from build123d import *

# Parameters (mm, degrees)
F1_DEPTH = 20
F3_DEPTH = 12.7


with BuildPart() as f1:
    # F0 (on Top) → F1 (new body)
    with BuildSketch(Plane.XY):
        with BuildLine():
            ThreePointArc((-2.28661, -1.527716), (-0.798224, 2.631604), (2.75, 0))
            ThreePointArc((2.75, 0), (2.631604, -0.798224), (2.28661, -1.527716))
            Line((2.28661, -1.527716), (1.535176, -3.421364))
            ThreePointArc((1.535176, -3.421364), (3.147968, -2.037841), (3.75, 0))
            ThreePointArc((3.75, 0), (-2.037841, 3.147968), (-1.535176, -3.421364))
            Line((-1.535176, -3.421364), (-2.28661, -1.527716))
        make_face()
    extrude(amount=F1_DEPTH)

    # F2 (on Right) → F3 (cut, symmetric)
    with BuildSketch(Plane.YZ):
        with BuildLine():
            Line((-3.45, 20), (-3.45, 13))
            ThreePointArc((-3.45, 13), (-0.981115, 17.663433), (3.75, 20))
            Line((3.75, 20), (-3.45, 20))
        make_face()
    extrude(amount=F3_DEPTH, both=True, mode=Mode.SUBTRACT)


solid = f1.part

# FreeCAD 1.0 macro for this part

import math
import FreeCAD as App
import Part
import Sketcher

V = App.Vector
Q = App.Units.Quantity

doc = App.newDocument("Part")
body = doc.addObject("PartDesign::Body", "Body")

# Sketch on XY plane
sketch1 = body.newObject("Sketcher::SketchObject", "Sketch")
sketch1.AttachmentSupport = (doc.getObject("XY_Plane"), [""])
sketch1.MapMode = "FlatFace"
sketch1.addGeometry([
    Part.ArcOfCircle(Part.Circle(V(0, 0, 0), V(0, 0, 1), 2.8), math.radians(0), math.radians(214)),  # 0
    Part.ArcOfCircle(Part.Circle(V(0, 0, 0), V(0, 0, 1), 2.7), math.radians(-34), math.radians(0)),  # 1
    Part.LineSegment(V(2.3, -1.5, 0), V(1.5, -3.4, 0)),  # 2
    Part.ArcOfCircle(Part.Circle(V(0, 0, 0), V(0, 0, 1), 3.7), math.radians(-66), math.radians(0)),  # 3
    Part.ArcOfCircle(Part.Circle(V(0, 0, 0), V(0, 0, 1), 3.7), math.radians(0), math.radians(246)),  # 4
    Part.LineSegment(V(-1.5, -3.4, 0), V(-2.3, -1.5, 0)),  # 5
], False)
sketch1.addConstraint([
    Sketcher.Constraint("Tangent", 0, 1, 1, 2),
    Sketcher.Constraint("Coincident", 1, 1, 2, 1),
    Sketcher.Constraint("Coincident", 2, 2, 3, 1),
    Sketcher.Constraint("Tangent", 3, 2, 4, 1),
    Sketcher.Constraint("Coincident", 4, 2, 5, 1),
    Sketcher.Constraint("Coincident", 5, 2, 0, 2),
    Sketcher.Constraint("Coincident", 0, 3, -1, 1),
    Sketcher.Constraint("Coincident", 3, 3, -1, 1),
    Sketcher.Constraint("Equal", 0, 1),
    Sketcher.Constraint("Equal", 3, 4),
    Sketcher.Constraint("PointOnObject", 0, 1, -1),
    Sketcher.Constraint("PointOnObject", 3, 2, -1),
    Sketcher.Constraint("Horizontal", 2, 2, 4, 2),
    Sketcher.Constraint("Horizontal", 1, 1, 5, 2),
    Sketcher.Constraint("Radius", 0, Q("2.75 mm")),
    Sketcher.Constraint("Radius", 3, Q("3.75 mm")),
    Sketcher.Constraint("Distance", 2, Q("2.037291 mm")),
    Sketcher.Constraint("DistanceX", -1, 1, 1, 1, Q("2.28661 mm")),
])
pad1 = body.newObject("PartDesign::Pad", "Pad")
pad1.Profile = sketch1
pad1.Length = 20

# Sketch on YZ plane
sketch2 = body.newObject("Sketcher::SketchObject", "Sketch001")
sketch2.AttachmentSupport = (doc.getObject("YZ_Plane"), [""])
sketch2.MapMode = "FlatFace"
sketch2.addGeometry([
    Part.LineSegment(V(-3, 20, 0), V(-3, 13, 0)),
    Part.ArcOfCircle(Part.Circle(V(5, 12, 0), V(0, 0, 1), 9), math.radians(98), math.radians(170)),
    Part.LineSegment(V(4, 20, 0), V(-3, 20, 0)),
], False)
sketch2.addConstraint([
    Sketcher.Constraint("Coincident", 0, 2, 1, 2),
    Sketcher.Constraint("Coincident", 1, 1, 2, 1),
    Sketcher.Constraint("Coincident", 2, 2, 0, 1),
    Sketcher.Constraint("Vertical", 0),
    Sketcher.Constraint("Horizontal", 2),
    Sketcher.Constraint("DistanceY", 0, 2, 0, 1, Q("7 mm")),
    Sketcher.Constraint("DistanceX", 2, 2, 2, 1, Q("7.2 mm")),
    Sketcher.Constraint("DistanceY", -1, 1, 0, 2, Q("13 mm")),
    Sketcher.Constraint("DistanceX", 0, 2, -1, 1, Q("3.45 mm")),
    Sketcher.Constraint("Radius", 1, Q("8.579476 mm")),
])
pocket1 = body.newObject("PartDesign::Pocket", "Pocket")
pocket1.Profile = sketch2
pocket1.Length = 25.4
pocket1.Midplane = True

doc.recompute()
